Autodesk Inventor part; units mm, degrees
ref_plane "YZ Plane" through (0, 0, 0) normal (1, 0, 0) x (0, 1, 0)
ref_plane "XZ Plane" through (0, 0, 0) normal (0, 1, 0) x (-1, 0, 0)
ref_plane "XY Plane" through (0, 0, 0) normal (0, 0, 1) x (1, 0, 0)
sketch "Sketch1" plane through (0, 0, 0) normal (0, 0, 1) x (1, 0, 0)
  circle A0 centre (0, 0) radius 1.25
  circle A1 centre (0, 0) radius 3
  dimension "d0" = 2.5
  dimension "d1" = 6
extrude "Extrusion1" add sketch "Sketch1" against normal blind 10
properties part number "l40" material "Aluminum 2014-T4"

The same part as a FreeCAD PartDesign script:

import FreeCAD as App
import Part
import Sketcher

V = App.Vector
Q = App.Units.Quantity

doc = App.newDocument("Part")
params = doc.addObject("Spreadsheet::Sheet", "Params")
for row, (alias, value) in enumerate([
    ("sketch1_diameter", "6 mm"),
    ("sketch1_diameter2", "2.5 mm"),
    ("pad1_length", "10 mm"),
], start=1):
    params.set(f"A{row}", alias)
    params.set(f"B{row}", "=" + value)
    params.setAlias(f"B{row}", alias)

body = doc.addObject("PartDesign::Body", "Body")

# Sketch on XY plane
sketch1 = doc.addObject("Sketcher::SketchObject", "Sketch")
body.addObject(sketch1)
sketch1.AttachmentSupport = (doc.XY_Plane, [""])
sketch1.MapMode = "FlatFace"
sketch1.addGeometry([
    Part.Circle(V(0, 0, 0), V(0, 0, 1), 3),
    Part.Circle(V(0, 0, 0), V(0, 0, 1), 1.2),
], False)
sketch1.addConstraint([
    Sketcher.Constraint("Coincident", 0, 3, -1, 1),
    Sketcher.Constraint("Coincident", 1, 3, -1, 1),
    Sketcher.Constraint("Diameter", 0, Q("6 mm")),
    Sketcher.Constraint("Diameter", 1, Q("2.5 mm")),
])
sketch1.setExpression("Constraints[2]", "Params.sketch1_diameter")
sketch1.setExpression("Constraints[3]", "Params.sketch1_diameter2")
pad1 = doc.addObject("PartDesign::Pad", "Pad")
body.addObject(pad1)
pad1.Profile = sketch1
pad1.setExpression("Length", "Params.pad1_length")
pad1.Reversed = True

doc.recompute()
